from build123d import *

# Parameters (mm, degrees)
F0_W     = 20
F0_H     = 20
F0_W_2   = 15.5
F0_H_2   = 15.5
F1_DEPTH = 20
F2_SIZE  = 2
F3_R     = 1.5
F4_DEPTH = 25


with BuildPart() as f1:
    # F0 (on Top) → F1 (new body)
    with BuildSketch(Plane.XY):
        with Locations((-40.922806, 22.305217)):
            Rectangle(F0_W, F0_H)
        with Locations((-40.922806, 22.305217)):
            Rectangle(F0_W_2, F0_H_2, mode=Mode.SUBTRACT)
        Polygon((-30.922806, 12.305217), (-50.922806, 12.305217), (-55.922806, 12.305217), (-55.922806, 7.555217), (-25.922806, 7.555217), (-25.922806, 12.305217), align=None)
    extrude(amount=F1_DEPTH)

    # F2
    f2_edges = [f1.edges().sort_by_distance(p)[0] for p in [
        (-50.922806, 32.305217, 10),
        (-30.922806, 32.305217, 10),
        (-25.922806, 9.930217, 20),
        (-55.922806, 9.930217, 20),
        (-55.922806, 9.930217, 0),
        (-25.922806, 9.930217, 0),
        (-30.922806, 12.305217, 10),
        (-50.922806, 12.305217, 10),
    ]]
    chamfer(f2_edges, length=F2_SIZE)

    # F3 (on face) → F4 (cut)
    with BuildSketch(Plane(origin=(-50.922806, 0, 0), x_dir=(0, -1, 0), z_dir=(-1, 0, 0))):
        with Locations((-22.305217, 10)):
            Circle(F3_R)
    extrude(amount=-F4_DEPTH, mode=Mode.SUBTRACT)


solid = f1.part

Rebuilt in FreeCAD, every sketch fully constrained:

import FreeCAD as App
import Part
import Sketcher


def edges_at(feature, points):
    """Names of the edges that pass closest to the given points."""
    edges = feature.Shape.Edges
    near = lambda p: min(range(len(edges)), key=lambda i: edges[i].distToShape(Part.Vertex(*p))[0])
    return sorted({f"Edge{near(p) + 1}" for p in points})

doc = App.newDocument("Part")
params = doc.addObject("Spreadsheet::Sheet", "Params")
for row, (alias, value) in enumerate([
    ("sketch1_width", "5 mm"),
    ("sketch1_width2", "30 mm"),
    ("sketch1_width3", "15.5 mm"),
    ("sketch1_height", "4.75 mm"),
    ("pad1_length", "20 mm"),
    ("chamfer_size", "2 mm"),
    ("sketch2_diameter", "3 mm"),
    ("pocket1_length", "25 mm"),
], start=1):
    params.set(f"A{row}", alias)
    params.set(f"B{row}", "=" + value)
    params.setAlias(f"B{row}", alias)

body = doc.addObject("PartDesign::Body", "Body")

# Sketch on XY plane
sketch1 = body.newObject("Sketcher::SketchObject", "Sketch")
sketch1.AttachmentSupport = (doc.getObject("XY_Plane"), [""])
sketch1.MapMode = "FlatFace"
sketch1.addGeometry([
    Part.LineSegment(App.Vector(-50.9, 32.3, 0), App.Vector(-50.9, 12.3, 0)),  # 0
    Part.LineSegment(App.Vector(-50.9, 12.3, 0), App.Vector(-55.9, 12.3, 0)),  # 1
    Part.LineSegment(App.Vector(-55.9, 12.3, 0), App.Vector(-55.9, 7.6, 0)),  # 2
    Part.LineSegment(App.Vector(-55.9, 7.6, 0), App.Vector(-25.9, 7.6, 0)),  # 3
    Part.LineSegment(App.Vector(-25.9, 7.6, 0), App.Vector(-25.9, 12.3, 0)),  # 4
    Part.LineSegment(App.Vector(-25.9, 12.3, 0), App.Vector(-30.9, 12.3, 0)),  # 5
    Part.LineSegment(App.Vector(-30.9, 12.3, 0), App.Vector(-30.9, 32.3, 0)),  # 6
    Part.LineSegment(App.Vector(-30.9, 32.3, 0), App.Vector(-50.9, 32.3, 0)),  # 7
    Part.LineSegment(App.Vector(-33.2, 14.6, 0), App.Vector(-48.7, 14.6, 0)),  # 8
    Part.LineSegment(App.Vector(-48.7, 14.6, 0), App.Vector(-48.7, 30.1, 0)),  # 9
    Part.LineSegment(App.Vector(-48.7, 30.1, 0), App.Vector(-33.2, 30.1, 0)),  # 10
    Part.LineSegment(App.Vector(-33.2, 30.1, 0), App.Vector(-33.2, 14.6, 0)),  # 11
], False)
sketch1.addConstraint([
    Sketcher.Constraint("Coincident", 0, 2, 1, 1),
    Sketcher.Constraint("Coincident", 1, 2, 2, 1),
    Sketcher.Constraint("Coincident", 2, 2, 3, 1),
    Sketcher.Constraint("Coincident", 3, 2, 4, 1),
    Sketcher.Constraint("Coincident", 4, 2, 5, 1),
    Sketcher.Constraint("Coincident", 5, 2, 6, 1),
    Sketcher.Constraint("Coincident", 6, 2, 7, 1),
    Sketcher.Constraint("Coincident", 7, 2, 0, 1),
    Sketcher.Constraint("Coincident", 8, 2, 9, 1),
    Sketcher.Constraint("Coincident", 9, 2, 10, 1),
    Sketcher.Constraint("Coincident", 10, 2, 11, 1),
    Sketcher.Constraint("Coincident", 11, 2, 8, 1),
    Sketcher.Constraint("Vertical", 0),
    Sketcher.Constraint("Horizontal", 1),
    Sketcher.Constraint("Vertical", 2),
    Sketcher.Constraint("Horizontal", 3),
    Sketcher.Constraint("Vertical", 4),
    Sketcher.Constraint("Horizontal", 5),
    Sketcher.Constraint("Vertical", 6),
    Sketcher.Constraint("Horizontal", 7),
    Sketcher.Constraint("Horizontal", 8),
    Sketcher.Constraint("Vertical", 9),
    Sketcher.Constraint("Horizontal", 10),
    Sketcher.Constraint("Vertical", 11),
    Sketcher.Constraint("Horizontal", 1, 2, 4, 2),
    Sketcher.Constraint("Equal", 1, 5),
    Sketcher.Constraint("Equal", 7, 0),
    Sketcher.Constraint("Equal", 10, 9),
    Sketcher.Constraint("DistanceX", 1, 2, 1, 1, 5.0),
    Sketcher.Constraint("DistanceX", 3, 1, 3, 2, 30.0),
    Sketcher.Constraint("DistanceX", 8, 2, 8, 1, 15.5),
    Sketcher.Constraint("DistanceY", 2, 2, 8, 2, 7.0),
    Sketcher.Constraint("DistanceY", 2, 2, 2, 1, 4.75),
    Sketcher.Constraint("DistanceX", 0, 2, 8, 2, 2.25),
    Sketcher.Constraint("DistanceX", 0, 2, -1, 1, 50.922806),
    Sketcher.Constraint("DistanceY", -1, 1, 0, 2, 12.305217),
])
sketch1.setExpression("Constraints[28]", "Params.sketch1_width")
sketch1.setExpression("Constraints[29]", "Params.sketch1_width2")
sketch1.setExpression("Constraints[30]", "Params.sketch1_width3")
sketch1.setExpression("Constraints[32]", "Params.sketch1_height")
pad1 = body.newObject("PartDesign::Pad", "Pad")
pad1.Profile = sketch1
pad1.setExpression("Length", "Params.pad1_length")
doc.recompute()

chamfer = body.newObject("PartDesign::Chamfer", "Chamfer")
chamfer.Base = (pad1, edges_at(pad1, [
    (-50.923, 32.305, 10),
    (-30.923, 32.305, 10),
    (-25.923, 9.93, 20),
    (-55.923, 9.93, 20),
    (-55.923, 9.93, 0),
    (-25.923, 9.93, 0),
    (-30.923, 12.305, 10),
    (-50.923, 12.305, 10),
]))
chamfer.setExpression("Size", "Params.chamfer_size")

# Sketch on YZ plane
sketch2 = body.newObject("Sketcher::SketchObject", "Sketch001")
sketch2.AttachmentSupport = (doc.getObject("YZ_Plane"), [""])
sketch2.MapMode = "FlatFace"
sketch2.AttachmentOffset = App.Placement(App.Vector(0, 0, -50.922806), App.Rotation())
sketch2.addGeometry(Part.Circle(App.Vector(22.3, 10, 0), App.Vector(0, 0, 1), 1.5), False)
sketch2.addConstraint([
    Sketcher.Constraint("Diameter", 0, 3.0),
    Sketcher.Constraint("DistanceY", -1, 1, 0, 3, 10.0),
    Sketcher.Constraint("DistanceX", -1, 1, 0, 3, 22.305217),
])
sketch2.setExpression("Constraints[0]", "Params.sketch2_diameter")
pocket1 = body.newObject("PartDesign::Pocket", "Pocket")
pocket1.Profile = sketch2
pocket1.setExpression("Length", "Params.pocket1_length")
pocket1.Reversed = True

doc.recompute()
